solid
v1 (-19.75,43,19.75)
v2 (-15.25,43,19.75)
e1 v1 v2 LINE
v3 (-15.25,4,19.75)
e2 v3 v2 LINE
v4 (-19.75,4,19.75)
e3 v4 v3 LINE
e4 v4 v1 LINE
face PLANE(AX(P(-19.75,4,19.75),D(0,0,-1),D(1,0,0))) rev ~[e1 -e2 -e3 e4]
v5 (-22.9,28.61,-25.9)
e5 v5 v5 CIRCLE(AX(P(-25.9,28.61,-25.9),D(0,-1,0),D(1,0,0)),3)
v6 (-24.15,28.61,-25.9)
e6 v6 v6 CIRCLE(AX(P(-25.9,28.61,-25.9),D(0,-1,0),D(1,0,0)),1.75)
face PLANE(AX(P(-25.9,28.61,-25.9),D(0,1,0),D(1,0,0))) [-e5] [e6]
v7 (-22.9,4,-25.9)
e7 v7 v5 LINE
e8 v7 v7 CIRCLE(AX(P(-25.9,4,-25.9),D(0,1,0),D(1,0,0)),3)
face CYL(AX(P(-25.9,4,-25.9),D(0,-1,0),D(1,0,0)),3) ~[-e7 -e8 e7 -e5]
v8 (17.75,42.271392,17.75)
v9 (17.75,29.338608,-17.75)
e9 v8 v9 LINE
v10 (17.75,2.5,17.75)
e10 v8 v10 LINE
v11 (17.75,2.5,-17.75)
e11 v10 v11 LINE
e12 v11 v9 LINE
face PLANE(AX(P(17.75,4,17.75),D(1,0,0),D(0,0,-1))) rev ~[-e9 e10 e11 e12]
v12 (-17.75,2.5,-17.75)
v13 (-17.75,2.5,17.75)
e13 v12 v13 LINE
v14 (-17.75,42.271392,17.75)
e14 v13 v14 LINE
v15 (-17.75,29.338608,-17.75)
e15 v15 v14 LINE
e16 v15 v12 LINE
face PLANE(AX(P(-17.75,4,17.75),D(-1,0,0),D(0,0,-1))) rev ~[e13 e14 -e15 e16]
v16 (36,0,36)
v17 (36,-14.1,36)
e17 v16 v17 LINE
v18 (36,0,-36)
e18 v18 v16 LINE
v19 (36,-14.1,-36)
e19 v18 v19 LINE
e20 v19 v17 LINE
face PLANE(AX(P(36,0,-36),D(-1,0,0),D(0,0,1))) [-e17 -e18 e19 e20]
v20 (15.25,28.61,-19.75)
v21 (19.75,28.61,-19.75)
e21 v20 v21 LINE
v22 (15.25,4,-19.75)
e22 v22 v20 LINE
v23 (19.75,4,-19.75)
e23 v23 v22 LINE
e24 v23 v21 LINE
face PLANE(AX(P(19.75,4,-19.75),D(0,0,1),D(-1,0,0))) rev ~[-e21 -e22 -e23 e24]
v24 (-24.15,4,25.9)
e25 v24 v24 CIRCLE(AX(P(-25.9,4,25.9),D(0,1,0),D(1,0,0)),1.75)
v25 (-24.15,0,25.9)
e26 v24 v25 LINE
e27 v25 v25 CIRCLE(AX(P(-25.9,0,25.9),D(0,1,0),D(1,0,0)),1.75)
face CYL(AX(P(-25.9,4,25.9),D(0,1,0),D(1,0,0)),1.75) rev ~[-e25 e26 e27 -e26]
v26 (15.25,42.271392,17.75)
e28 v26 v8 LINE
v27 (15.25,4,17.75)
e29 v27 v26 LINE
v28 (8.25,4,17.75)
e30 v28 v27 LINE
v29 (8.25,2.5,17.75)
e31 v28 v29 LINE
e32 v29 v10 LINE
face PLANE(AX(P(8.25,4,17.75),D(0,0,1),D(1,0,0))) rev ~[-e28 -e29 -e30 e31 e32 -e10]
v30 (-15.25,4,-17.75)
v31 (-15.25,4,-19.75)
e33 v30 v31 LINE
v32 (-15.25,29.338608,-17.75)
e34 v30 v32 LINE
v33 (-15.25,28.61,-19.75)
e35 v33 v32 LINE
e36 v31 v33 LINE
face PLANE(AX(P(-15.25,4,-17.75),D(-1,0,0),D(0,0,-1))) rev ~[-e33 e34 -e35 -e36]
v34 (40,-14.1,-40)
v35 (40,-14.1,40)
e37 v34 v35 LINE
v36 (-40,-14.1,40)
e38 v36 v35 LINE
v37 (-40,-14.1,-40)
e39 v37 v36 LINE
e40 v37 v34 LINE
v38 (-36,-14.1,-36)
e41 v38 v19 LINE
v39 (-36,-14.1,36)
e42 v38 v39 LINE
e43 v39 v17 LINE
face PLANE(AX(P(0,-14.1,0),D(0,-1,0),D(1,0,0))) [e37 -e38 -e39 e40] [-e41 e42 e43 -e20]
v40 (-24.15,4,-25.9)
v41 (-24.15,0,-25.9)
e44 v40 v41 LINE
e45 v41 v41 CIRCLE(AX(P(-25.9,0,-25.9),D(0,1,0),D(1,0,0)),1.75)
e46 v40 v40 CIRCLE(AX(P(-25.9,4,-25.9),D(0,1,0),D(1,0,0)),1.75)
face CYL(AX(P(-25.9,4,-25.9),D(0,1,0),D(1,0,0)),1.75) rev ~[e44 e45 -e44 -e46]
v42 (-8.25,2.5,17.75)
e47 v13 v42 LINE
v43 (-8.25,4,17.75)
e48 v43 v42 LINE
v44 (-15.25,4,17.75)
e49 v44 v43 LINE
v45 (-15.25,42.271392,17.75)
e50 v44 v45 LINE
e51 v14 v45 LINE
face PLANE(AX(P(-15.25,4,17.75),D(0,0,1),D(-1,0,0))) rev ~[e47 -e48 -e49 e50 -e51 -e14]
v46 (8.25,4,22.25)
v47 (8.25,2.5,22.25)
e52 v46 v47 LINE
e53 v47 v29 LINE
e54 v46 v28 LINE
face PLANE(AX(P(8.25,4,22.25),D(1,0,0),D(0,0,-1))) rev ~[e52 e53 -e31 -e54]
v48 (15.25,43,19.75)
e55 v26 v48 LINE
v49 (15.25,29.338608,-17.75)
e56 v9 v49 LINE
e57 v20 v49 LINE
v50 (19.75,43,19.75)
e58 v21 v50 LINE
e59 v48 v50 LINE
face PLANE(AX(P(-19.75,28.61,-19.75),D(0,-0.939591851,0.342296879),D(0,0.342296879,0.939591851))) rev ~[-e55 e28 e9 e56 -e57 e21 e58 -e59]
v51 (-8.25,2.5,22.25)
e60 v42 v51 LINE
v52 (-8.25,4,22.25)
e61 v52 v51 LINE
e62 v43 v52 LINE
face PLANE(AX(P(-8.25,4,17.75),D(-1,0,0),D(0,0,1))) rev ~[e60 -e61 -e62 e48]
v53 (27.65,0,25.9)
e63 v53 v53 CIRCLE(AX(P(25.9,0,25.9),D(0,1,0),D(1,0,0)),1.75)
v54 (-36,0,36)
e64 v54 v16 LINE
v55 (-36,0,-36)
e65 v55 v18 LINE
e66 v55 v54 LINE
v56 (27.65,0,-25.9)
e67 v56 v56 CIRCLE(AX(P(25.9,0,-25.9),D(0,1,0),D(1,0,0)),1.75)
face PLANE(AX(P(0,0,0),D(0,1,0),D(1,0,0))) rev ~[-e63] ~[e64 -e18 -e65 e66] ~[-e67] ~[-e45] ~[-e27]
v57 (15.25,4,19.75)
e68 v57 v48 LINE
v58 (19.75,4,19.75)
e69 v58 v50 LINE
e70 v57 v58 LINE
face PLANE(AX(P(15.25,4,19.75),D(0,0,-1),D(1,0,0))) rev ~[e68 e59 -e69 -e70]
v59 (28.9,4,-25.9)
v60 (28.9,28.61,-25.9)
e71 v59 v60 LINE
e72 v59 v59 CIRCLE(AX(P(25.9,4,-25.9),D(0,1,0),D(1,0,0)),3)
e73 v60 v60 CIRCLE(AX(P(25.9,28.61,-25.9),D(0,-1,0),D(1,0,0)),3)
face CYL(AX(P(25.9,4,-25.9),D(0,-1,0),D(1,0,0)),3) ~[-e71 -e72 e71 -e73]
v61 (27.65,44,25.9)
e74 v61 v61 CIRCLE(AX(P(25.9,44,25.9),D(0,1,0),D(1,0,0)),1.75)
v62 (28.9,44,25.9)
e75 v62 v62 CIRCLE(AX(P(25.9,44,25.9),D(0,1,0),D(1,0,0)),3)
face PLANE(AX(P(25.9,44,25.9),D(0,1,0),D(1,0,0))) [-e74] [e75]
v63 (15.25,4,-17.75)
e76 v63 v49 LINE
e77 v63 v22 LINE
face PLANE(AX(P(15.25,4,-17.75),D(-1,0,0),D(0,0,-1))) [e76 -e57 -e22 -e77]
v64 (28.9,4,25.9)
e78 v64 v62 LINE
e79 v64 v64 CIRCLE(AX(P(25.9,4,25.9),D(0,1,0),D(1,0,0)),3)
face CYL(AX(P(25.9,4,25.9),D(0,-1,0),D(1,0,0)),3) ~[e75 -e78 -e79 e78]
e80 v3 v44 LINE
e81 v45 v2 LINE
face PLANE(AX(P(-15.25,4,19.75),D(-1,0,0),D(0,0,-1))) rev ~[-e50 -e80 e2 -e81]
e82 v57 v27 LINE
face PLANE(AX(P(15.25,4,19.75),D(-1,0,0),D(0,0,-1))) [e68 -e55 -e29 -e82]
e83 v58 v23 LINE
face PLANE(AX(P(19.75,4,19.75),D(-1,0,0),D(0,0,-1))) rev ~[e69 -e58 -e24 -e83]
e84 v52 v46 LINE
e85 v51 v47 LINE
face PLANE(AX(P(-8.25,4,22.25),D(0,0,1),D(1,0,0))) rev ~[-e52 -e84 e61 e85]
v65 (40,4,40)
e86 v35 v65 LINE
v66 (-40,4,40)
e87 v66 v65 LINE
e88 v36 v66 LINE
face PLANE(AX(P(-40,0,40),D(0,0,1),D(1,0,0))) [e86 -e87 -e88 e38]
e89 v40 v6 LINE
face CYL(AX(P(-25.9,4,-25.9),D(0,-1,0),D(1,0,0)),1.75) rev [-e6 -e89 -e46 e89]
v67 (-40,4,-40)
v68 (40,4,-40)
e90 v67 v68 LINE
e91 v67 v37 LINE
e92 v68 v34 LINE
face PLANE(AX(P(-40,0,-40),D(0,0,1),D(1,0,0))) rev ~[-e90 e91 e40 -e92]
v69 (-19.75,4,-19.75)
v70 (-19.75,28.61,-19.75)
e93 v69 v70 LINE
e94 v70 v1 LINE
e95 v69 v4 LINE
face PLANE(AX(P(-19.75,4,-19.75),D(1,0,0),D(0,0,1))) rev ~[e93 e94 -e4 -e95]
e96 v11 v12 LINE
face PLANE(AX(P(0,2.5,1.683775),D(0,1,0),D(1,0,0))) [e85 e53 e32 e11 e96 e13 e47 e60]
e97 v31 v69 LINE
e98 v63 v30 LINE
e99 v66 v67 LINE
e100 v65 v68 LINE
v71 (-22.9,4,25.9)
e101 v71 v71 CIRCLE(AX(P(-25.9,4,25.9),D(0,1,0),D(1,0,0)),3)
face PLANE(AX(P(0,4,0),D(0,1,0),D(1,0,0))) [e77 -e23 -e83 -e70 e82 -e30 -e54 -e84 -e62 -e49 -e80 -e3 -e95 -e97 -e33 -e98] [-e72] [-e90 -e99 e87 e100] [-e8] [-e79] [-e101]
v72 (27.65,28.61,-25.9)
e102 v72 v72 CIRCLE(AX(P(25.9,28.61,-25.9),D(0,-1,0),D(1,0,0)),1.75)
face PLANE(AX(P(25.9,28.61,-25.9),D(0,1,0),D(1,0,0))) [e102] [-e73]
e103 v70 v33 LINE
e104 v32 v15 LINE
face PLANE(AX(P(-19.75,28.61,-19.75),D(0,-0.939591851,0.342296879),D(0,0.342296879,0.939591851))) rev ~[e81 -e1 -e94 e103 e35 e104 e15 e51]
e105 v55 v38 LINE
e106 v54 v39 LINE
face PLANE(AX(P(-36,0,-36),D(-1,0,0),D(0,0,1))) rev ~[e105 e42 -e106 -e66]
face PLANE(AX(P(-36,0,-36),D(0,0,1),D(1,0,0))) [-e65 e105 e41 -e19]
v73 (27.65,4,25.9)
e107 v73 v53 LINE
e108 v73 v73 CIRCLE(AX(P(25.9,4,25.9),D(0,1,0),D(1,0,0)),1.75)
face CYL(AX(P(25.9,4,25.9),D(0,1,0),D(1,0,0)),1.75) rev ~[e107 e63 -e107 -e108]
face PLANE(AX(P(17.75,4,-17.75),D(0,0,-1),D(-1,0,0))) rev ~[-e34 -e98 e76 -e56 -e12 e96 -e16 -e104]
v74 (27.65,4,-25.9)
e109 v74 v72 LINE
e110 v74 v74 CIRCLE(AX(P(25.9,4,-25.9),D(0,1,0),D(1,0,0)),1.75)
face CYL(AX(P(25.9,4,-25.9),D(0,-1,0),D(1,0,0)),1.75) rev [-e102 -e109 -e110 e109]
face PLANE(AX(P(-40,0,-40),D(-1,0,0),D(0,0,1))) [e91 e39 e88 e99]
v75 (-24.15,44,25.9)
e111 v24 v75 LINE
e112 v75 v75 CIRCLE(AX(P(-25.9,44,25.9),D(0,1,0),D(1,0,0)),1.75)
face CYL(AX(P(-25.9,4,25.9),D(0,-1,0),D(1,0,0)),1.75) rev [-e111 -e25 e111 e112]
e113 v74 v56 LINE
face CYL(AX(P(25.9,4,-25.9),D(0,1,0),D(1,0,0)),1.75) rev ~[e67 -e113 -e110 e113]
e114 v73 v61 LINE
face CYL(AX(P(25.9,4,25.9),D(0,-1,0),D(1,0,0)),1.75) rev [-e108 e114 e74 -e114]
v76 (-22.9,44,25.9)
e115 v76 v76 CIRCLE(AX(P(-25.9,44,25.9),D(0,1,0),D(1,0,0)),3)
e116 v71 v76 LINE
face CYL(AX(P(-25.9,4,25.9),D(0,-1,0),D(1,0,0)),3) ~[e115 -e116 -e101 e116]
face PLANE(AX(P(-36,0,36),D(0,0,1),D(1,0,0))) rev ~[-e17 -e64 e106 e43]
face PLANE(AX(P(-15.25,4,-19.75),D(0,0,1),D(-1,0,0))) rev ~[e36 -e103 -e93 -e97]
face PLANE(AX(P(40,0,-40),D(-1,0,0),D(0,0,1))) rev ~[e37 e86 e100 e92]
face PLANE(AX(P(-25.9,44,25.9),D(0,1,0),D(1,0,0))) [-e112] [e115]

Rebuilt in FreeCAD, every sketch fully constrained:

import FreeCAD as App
import Part
import Sketcher
from FreeCAD import Vector


def add_polygon(sketch, points):
    """Adds a closed chain of lines whose ends are joined by coincident constraints."""
    first, n = sketch.GeometryCount, len(points)
    for a, b in zip(points, points[1:] + points[:1]):
        sketch.addGeometry(Part.LineSegment(App.Vector(*a, 0), App.Vector(*b, 0)), False)
    for i in range(n):
        sketch.addConstraint(Sketcher.Constraint("Coincident", first + i, 2, first + (i + 1) % n, 1))

doc = App.newDocument("Part")
body = doc.addObject("PartDesign::Body", "Body")

# Sketch on XZ plane
sketch1 = body.newObject("Sketcher::SketchObject", "Sketch")
sketch1.AttachmentSupport = (doc.getObject("XZ_Plane"), [""])
sketch1.MapMode = "FlatFace"
add_polygon(sketch1, [(-40, -40), (-40, 40), (40, 40), (40, -40)])  # lines 0-3
sketch1.addConstraint(Sketcher.Constraint("Vertical", 0))
sketch1.addConstraint(Sketcher.Constraint("Horizontal", 1))
sketch1.addConstraint(Sketcher.Constraint("Vertical", 2))
sketch1.addConstraint(Sketcher.Constraint("Horizontal", 3))
sketch1.addConstraint(Sketcher.Constraint("Symmetric", 0, 2, 2, 2, -1, 1))
sketch1.addConstraint(Sketcher.Constraint("Equal", 3, 0))
sketch1.addConstraint(Sketcher.Constraint("DistanceX", 1, 1, 1, 2, 80.0))
pad1 = body.newObject("PartDesign::Pad", "Pad")
pad1.Profile = sketch1
pad1.Length = 4
pad1.Reversed = True

# Sketch on XZ plane
sketch2 = body.newObject("Sketcher::SketchObject", "Sketch001")
sketch2.AttachmentSupport = (doc.getObject("XZ_Plane"), [""])
sketch2.MapMode = "FlatFace"
sketch2.AttachmentOffset = App.Placement(Vector(0, 0, -4), App.Rotation())
add_polygon(sketch2, [(8.25, 17.75), (17.75, 17.75), (17.75, -17.75), (-17.75, -17.75), (-17.75, 17.75), (-8.25, 17.75), (-8.25, 22.25), (8.25, 22.25)])  # lines 0-7
sketch2.addConstraint(Sketcher.Constraint("Horizontal", 0))
sketch2.addConstraint(Sketcher.Constraint("Vertical", 1))
sketch2.addConstraint(Sketcher.Constraint("Horizontal", 2))
sketch2.addConstraint(Sketcher.Constraint("Vertical", 3))
sketch2.addConstraint(Sketcher.Constraint("Horizontal", 4))
sketch2.addConstraint(Sketcher.Constraint("Vertical", 5))
sketch2.addConstraint(Sketcher.Constraint("Horizontal", 6))
sketch2.addConstraint(Sketcher.Constraint("Vertical", 7))
sketch2.addConstraint(Sketcher.Constraint("Symmetric", 0, 2, 2, 2, -1, 1))
sketch2.addConstraint(Sketcher.Constraint("Symmetric", 4, 2, 7, 2, -2))
sketch2.addConstraint(Sketcher.Constraint("Equal", 2, 1))
sketch2.addConstraint(Sketcher.Constraint("DistanceX", 0, 1, 0, 2, 9.5))
sketch2.addConstraint(Sketcher.Constraint("DistanceX", 2, 2, 2, 1, 35.5))
sketch2.addConstraint(Sketcher.Constraint("DistanceY", 5, 1, 5, 2, 4.5))
pocket1 = body.newObject("PartDesign::Pocket", "Pocket")
pocket1.Profile = sketch2
pocket1.Length = 1.5
pocket1.Reversed = True

# Sketch on XZ plane
sketch3 = body.newObject("Sketcher::SketchObject", "Sketch002")
sketch3.AttachmentSupport = (doc.getObject("XZ_Plane"), [""])
sketch3.MapMode = "FlatFace"
sketch3.AttachmentOffset = App.Placement(Vector(0, 0, -4), App.Rotation())
add_polygon(sketch3, [(-19.75, 19.75), (-15.25, 19.75), (-15.25, 17.75), (-17.75, 17.75), (-17.75, -17.75), (-15.25, -17.75), (-15.25, -19.75), (-19.75, -19.75)])  # lines 0-7
add_polygon(sketch3, [(19.75, 19.75), (19.75, -19.75), (15.25, -19.75), (15.25, -17.75), (17.75, -17.75), (17.75, 17.75), (15.25, 17.75), (15.25, 19.75)])  # lines 8-15
sketch3.addConstraint(Sketcher.Constraint("Horizontal", 0))
sketch3.addConstraint(Sketcher.Constraint("Vertical", 1))
sketch3.addConstraint(Sketcher.Constraint("Horizontal", 2))
sketch3.addConstraint(Sketcher.Constraint("Vertical", 3))
sketch3.addConstraint(Sketcher.Constraint("Horizontal", 4))
sketch3.addConstraint(Sketcher.Constraint("Vertical", 5))
sketch3.addConstraint(Sketcher.Constraint("Horizontal", 6))
sketch3.addConstraint(Sketcher.Constraint("Vertical", 7))
sketch3.addConstraint(Sketcher.Constraint("Vertical", 8))
sketch3.addConstraint(Sketcher.Constraint("Horizontal", 9))
sketch3.addConstraint(Sketcher.Constraint("Vertical", 10))
sketch3.addConstraint(Sketcher.Constraint("Horizontal", 11))
sketch3.addConstraint(Sketcher.Constraint("Vertical", 12))
sketch3.addConstraint(Sketcher.Constraint("Horizontal", 13))
sketch3.addConstraint(Sketcher.Constraint("Vertical", 14))
sketch3.addConstraint(Sketcher.Constraint("Horizontal", 15))
sketch3.addConstraint(Sketcher.Constraint("Symmetric", 7, 2, 8, 2, -1, 1))
sketch3.addConstraint(Sketcher.Constraint("Symmetric", 1, 2, 10, 2, -1, 1))
sketch3.addConstraint(Sketcher.Constraint("Symmetric", 3, 2, 12, 2, -1, 1))
sketch3.addConstraint(Sketcher.Constraint("Symmetric", 5, 2, 14, 2, -1, 1))
sketch3.addConstraint(Sketcher.Constraint("Symmetric", 5, 2, 9, 2, -2))
sketch3.addConstraint(Sketcher.Constraint("Horizontal", 4, 2, 10, 2))
sketch3.addConstraint(Sketcher.Constraint("DistanceY", 1, 2, 1, 1, 2.0))
sketch3.addConstraint(Sketcher.Constraint("DistanceX", 0, 1, 0, 2, 4.5))
sketch3.addConstraint(Sketcher.Constraint("DistanceX", 2, 2, 2, 1, 2.5))
sketch3.addConstraint(Sketcher.Constraint("DistanceY", 3, 2, 3, 1, 35.5))
sketch3.addConstraint(Sketcher.Constraint("DistanceX", 5, 2, 8, 2, 35.0))
pad2 = body.newObject("PartDesign::Pad", "Pad001")
pad2.Profile = sketch3
pad2.Length = 39
pad2.Reversed = True

# Sketch on XZ plane
sketch4 = body.newObject("Sketcher::SketchObject", "Sketch003")
sketch4.AttachmentSupport = (doc.getObject("XZ_Plane"), [""])
sketch4.MapMode = "FlatFace"
sketch4.AttachmentOffset = App.Placement(Vector(0, 0, -4), App.Rotation())
sketch4.addGeometry(Part.Circle(Vector(25.9, -25.9, 0), Vector(0, 0, 1), 3), False)
sketch4.addGeometry(Part.Circle(Vector(25.9, -25.9, 0), Vector(0, 0, 1), 1.75), False)
sketch4.addGeometry(Part.Circle(Vector(-25.9, -25.9, 0), Vector(0, 0, 1), 3), False)
sketch4.addGeometry(Part.Circle(Vector(-25.9, -25.9, 0), Vector(0, 0, 1), 1.75), False)
sketch4.addGeometry(Part.Circle(Vector(-25.9, 25.9, 0), Vector(0, 0, 1), 3), False)
sketch4.addGeometry(Part.Circle(Vector(-25.9, 25.9, 0), Vector(0, 0, 1), 1.75), False)
sketch4.addGeometry(Part.Circle(Vector(25.9, 25.9, 0), Vector(0, 0, 1), 3), False)
sketch4.addGeometry(Part.Circle(Vector(25.9, 25.9, 0), Vector(0, 0, 1), 1.75), False)
sketch4.addConstraint(Sketcher.Constraint("Coincident", 1, 3, 0, 3))
sketch4.addConstraint(Sketcher.Constraint("Coincident", 3, 3, 2, 3))
sketch4.addConstraint(Sketcher.Constraint("Coincident", 5, 3, 4, 3))
sketch4.addConstraint(Sketcher.Constraint("Coincident", 7, 3, 6, 3))
sketch4.addConstraint(Sketcher.Constraint("Equal", 0, 2))
sketch4.addConstraint(Sketcher.Constraint("Equal", 1, 3))
sketch4.addConstraint(Sketcher.Constraint("Equal", 2, 4))
sketch4.addConstraint(Sketcher.Constraint("Equal", 3, 5))
sketch4.addConstraint(Sketcher.Constraint("Equal", 4, 6))
sketch4.addConstraint(Sketcher.Constraint("Equal", 5, 7))
sketch4.addConstraint(Sketcher.Constraint("Symmetric", 0, 3, 4, 3, -1, 1))
sketch4.addConstraint(Sketcher.Constraint("Symmetric", 2, 3, 6, 3, -1, 1))
sketch4.addConstraint(Sketcher.Constraint("Symmetric", 0, 3, 2, 3, -2))
sketch4.addConstraint(Sketcher.Constraint("Diameter", 0, 6.0))
sketch4.addConstraint(Sketcher.Constraint("Diameter", 1, 3.5))
sketch4.addConstraint(Sketcher.Constraint("DistanceX", -1, 1, 0, 3, 25.9))
sketch4.addConstraint(Sketcher.Constraint("DistanceY", 0, 3, -1, 1, 25.9))
pad3 = body.newObject("PartDesign::Pad", "Pad002")
pad3.Profile = sketch4
pad3.Length = 40
pad3.Reversed = True

# Sketch on XZ plane
sketch5 = body.newObject("Sketcher::SketchObject", "Sketch004")
sketch5.AttachmentSupport = (doc.getObject("XZ_Plane"), [""])
sketch5.MapMode = "FlatFace"
sketch5.AttachmentOffset = App.Placement(Vector(0, 0, -44), App.Rotation())
sketch5.addGeometry(Part.Circle(Vector(-25.9, -25.9, 0), Vector(0, 0, 1), 4.5), False)
sketch5.addGeometry(Part.Circle(Vector(25.9, -25.9, 0), Vector(0, 0, 1), 4.5), False)
sketch5.addConstraint(Sketcher.Constraint("Equal", 0, 1))
sketch5.addConstraint(Sketcher.Constraint("Symmetric", 0, 3, 1, 3, -2))
sketch5.addConstraint(Sketcher.Constraint("Diameter", 0, 9.0))
sketch5.addConstraint(Sketcher.Constraint("DistanceX", 0, 3, -1, 1, 25.9))
sketch5.addConstraint(Sketcher.Constraint("DistanceY", 0, 3, -1, 1, 25.9))
pocket2 = body.newObject("PartDesign::Pocket", "Pocket001")
pocket2.Profile = sketch5
pocket2.Length = 15.39
pocket2.Reversed = True

# Sketch on YZ plane
sketch6 = body.newObject("Sketcher::SketchObject", "Sketch005")
sketch6.AttachmentSupport = (doc.getObject("YZ_Plane"), [""])
sketch6.MapMode = "FlatFace"
sketch6.AttachmentOffset = App.Placement(Vector(0, 0, -19.75), App.Rotation())
add_polygon(sketch6, [(28.61, -19.75), (43, 19.75), (43, -19.75)])  # lines 0-2
sketch6.addConstraint(Sketcher.Constraint("Vertical", 1))
sketch6.addConstraint(Sketcher.Constraint("Horizontal", 2))
sketch6.addConstraint(Sketcher.Constraint("DistanceY", 1, 2, 1, 1, 39.5))
sketch6.addConstraint(Sketcher.Constraint("DistanceX", -1, 1, 0, 2, 43.0))
sketch6.addConstraint(Sketcher.Constraint("DistanceX", 2, 2, 2, 1, 14.39))
sketch6.addConstraint(Sketcher.Constraint("DistanceY", -1, 1, 0, 2, 19.75))
pocket3 = body.newObject("PartDesign::Pocket", "Pocket002")
pocket3.Profile = sketch6
pocket3.Type = "ThroughAll"
pocket3.Reversed = True

# Sketch on XZ plane
sketch7 = body.newObject("Sketcher::SketchObject", "Sketch006")
sketch7.AttachmentSupport = (doc.getObject("XZ_Plane"), [""])
sketch7.MapMode = "FlatFace"
sketch7.AttachmentOffset = App.Placement(Vector(0, 0, -4), App.Rotation())
sketch7.addGeometry(Part.Circle(Vector(-25.9, -25.9, 0), Vector(0, 0, 1), 1.75), False)
sketch7.addGeometry(Part.Circle(Vector(-25.9, 25.9, 0), Vector(0, 0, 1), 1.75), False)
sketch7.addGeometry(Part.Circle(Vector(25.9, 25.9, 0), Vector(0, 0, 1), 1.75), False)
sketch7.addGeometry(Part.Circle(Vector(25.9, -25.9, 0), Vector(0, 0, 1), 1.75), False)
sketch7.addConstraint(Sketcher.Constraint("Equal", 0, 1))
sketch7.addConstraint(Sketcher.Constraint("Equal", 1, 2))
sketch7.addConstraint(Sketcher.Constraint("Equal", 2, 3))
sketch7.addConstraint(Sketcher.Constraint("Symmetric", 0, 3, 2, 3, -1, 1))
sketch7.addConstraint(Sketcher.Constraint("Symmetric", 1, 3, 3, 3, -1, 1))
sketch7.addConstraint(Sketcher.Constraint("Symmetric", 1, 3, 2, 3, -2))
sketch7.addConstraint(Sketcher.Constraint("Diameter", 0, 3.5))
sketch7.addConstraint(Sketcher.Constraint("DistanceX", 0, 3, -1, 1, 25.9))
sketch7.addConstraint(Sketcher.Constraint("DistanceY", 0, 3, -1, 1, 25.9))
pocket4 = body.newObject("PartDesign::Pocket", "Pocket003")
pocket4.Profile = sketch7
pocket4.Type = "ThroughAll"
pocket4.Midplane = True

# Sketch on XZ plane
sketch8 = body.newObject("Sketcher::SketchObject", "Sketch007")
sketch8.AttachmentSupport = (doc.getObject("XZ_Plane"), [""])
sketch8.MapMode = "FlatFace"
add_polygon(sketch8, [(-40, 40), (-40, -40), (40, -40), (40, 40)])  # lines 0-3
add_polygon(sketch8, [(36, -36), (-36, -36), (-36, 36), (36, 36)])  # lines 4-7
sketch8.addConstraint(Sketcher.Constraint("Vertical", 0))
sketch8.addConstraint(Sketcher.Constraint("Horizontal", 1))
sketch8.addConstraint(Sketcher.Constraint("Vertical", 2))
sketch8.addConstraint(Sketcher.Constraint("Horizontal", 3))
sketch8.addConstraint(Sketcher.Constraint("Horizontal", 4))
sketch8.addConstraint(Sketcher.Constraint("Vertical", 5))
sketch8.addConstraint(Sketcher.Constraint("Horizontal", 6))
sketch8.addConstraint(Sketcher.Constraint("Vertical", 7))
sketch8.addConstraint(Sketcher.Constraint("Symmetric", 0, 2, 2, 2, -1, 1))
sketch8.addConstraint(Sketcher.Constraint("Symmetric", 4, 2, 6, 2, -1, 1))
sketch8.addConstraint(Sketcher.Constraint("Equal", 3, 0))
sketch8.addConstraint(Sketcher.Constraint("Equal", 6, 5))
sketch8.addConstraint(Sketcher.Constraint("DistanceX", 1, 1, 1, 2, 80.0))
sketch8.addConstraint(Sketcher.Constraint("DistanceX", 4, 2, 4, 1, 72.0))
pad4 = body.newObject("PartDesign::Pad", "Pad003")
pad4.Profile = sketch8
pad4.Length = 14.1

doc.recompute()
